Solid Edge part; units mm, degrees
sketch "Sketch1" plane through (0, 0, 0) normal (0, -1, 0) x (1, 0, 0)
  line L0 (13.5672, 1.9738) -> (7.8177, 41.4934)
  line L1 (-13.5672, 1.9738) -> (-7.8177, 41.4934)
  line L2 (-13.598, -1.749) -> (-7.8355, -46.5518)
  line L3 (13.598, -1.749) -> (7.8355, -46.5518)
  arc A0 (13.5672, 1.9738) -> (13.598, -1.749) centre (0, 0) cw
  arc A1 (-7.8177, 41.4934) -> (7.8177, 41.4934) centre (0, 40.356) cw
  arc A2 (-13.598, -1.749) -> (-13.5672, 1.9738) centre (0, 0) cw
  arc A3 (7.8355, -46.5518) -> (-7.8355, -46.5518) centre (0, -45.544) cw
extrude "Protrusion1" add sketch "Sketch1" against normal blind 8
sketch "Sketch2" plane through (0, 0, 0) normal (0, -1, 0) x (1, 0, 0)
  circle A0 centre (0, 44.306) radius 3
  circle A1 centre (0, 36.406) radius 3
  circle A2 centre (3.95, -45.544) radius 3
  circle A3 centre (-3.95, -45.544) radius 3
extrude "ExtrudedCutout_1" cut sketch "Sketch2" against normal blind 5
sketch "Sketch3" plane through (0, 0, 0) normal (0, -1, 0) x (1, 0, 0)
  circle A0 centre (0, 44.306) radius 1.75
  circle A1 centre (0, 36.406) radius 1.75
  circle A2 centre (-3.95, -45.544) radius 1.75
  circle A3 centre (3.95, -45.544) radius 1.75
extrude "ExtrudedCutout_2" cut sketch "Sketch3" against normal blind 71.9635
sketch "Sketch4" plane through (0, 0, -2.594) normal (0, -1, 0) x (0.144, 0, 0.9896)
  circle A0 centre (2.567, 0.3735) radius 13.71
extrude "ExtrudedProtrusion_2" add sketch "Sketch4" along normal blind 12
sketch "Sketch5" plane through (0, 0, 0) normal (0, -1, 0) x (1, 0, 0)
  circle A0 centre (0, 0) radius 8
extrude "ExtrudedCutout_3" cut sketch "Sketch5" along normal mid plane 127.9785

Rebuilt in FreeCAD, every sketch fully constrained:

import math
import FreeCAD as App
import Part
import Sketcher
from FreeCAD import Vector
Q = App.Units.Quantity

doc = App.newDocument("Part")
params = doc.addObject("Spreadsheet::Sheet", "Params")
for row, (alias, value) in enumerate([
    ("sketch1_radius", "7.9 mm"),
    ("sketch1_radius2", "13.71 mm"),
    ("pad1_length", "8 mm"),
    ("sketch2_diameter", "6 mm"),
    ("pocket1_length", "5 mm"),
    ("sketch3_diameter", "3.5 mm"),
    ("pocket2_length", "71.9635 mm"),
    ("sketch4_diameter", "27.42 mm"),
    ("pad2_length", "12 mm"),
    ("sketch5_diameter", "16 mm"),
    ("pocket3_length", "127.9785 mm"),
], start=1):
    params.set(f"A{row}", alias)
    params.set(f"B{row}", "=" + value)
    params.setAlias(f"B{row}", alias)

body = doc.addObject("PartDesign::Body", "Body")

sketch1 = body.newObject("Sketcher::SketchObject", "Sketch")
sketch1.AttachmentSupport = (doc.getObject("XZ_Plane"), [""])
sketch1.MapMode = "FlatFace"
sketch1.addGeometry(Part.ArcOfCircle(Part.Circle(Vector(0, 0, 0), Vector(0, 0, 1), 13.710018), math.radians(-7.329249), math.radians(8.277502)), False)
sketch1.addGeometry(Part.LineSegment(Vector(13.5672, 1.9738, 0), Vector(7.8177, 41.4934, 0)), False)
sketch1.addGeometry(Part.ArcOfCircle(Part.Circle(Vector(0, 40.356, 0), Vector(0, 0, 1), 7.900007), math.radians(8.277902), math.radians(171.722098)), False)
sketch1.addGeometry(Part.LineSegment(Vector(-7.8177, 41.4934, 0), Vector(-13.5672, 1.9738, 0)), False)
sketch1.addGeometry(Part.ArcOfCircle(Part.Circle(Vector(0, 0, 0), Vector(0, 0, 1), 13.710026), math.radians(171.722498), math.radians(187.329249)), False)
sketch1.addGeometry(Part.LineSegment(Vector(-13.598, -1.749, 0), Vector(-7.8355, -46.5518, 0)), False)
sketch1.addGeometry(Part.ArcOfCircle(Part.Circle(Vector(0, -45.544, 0), Vector(0, 0, 1), 7.900046), math.radians(-172.67087), math.radians(-7.32913)), False)
sketch1.addGeometry(Part.LineSegment(Vector(7.8355, -46.5518, 0), Vector(13.598, -1.749, 0)), False)
sketch1.addConstraint(Sketcher.Constraint("Tangent", 0, 2, 1, 1))
sketch1.addConstraint(Sketcher.Constraint("Tangent", 1, 2, 2, 1))
sketch1.addConstraint(Sketcher.Constraint("Tangent", 2, 2, 3, 1))
sketch1.addConstraint(Sketcher.Constraint("Tangent", 3, 2, 4, 1))
sketch1.addConstraint(Sketcher.Constraint("Tangent", 4, 2, 5, 1))
sketch1.addConstraint(Sketcher.Constraint("Tangent", 5, 2, 6, 1))
sketch1.addConstraint(Sketcher.Constraint("Tangent", 6, 2, 7, 1))
sketch1.addConstraint(Sketcher.Constraint("Tangent", 7, 2, 0, 1))
sketch1.addConstraint(Sketcher.Constraint("Coincident", 0, 3, -1, 1))
sketch1.addConstraint(Sketcher.Constraint("Coincident", 4, 3, -1, 1))
sketch1.addConstraint(Sketcher.Constraint("Equal", 0, 4))
sketch1.addConstraint(Sketcher.Constraint("Equal", 2, 6))
sketch1.addConstraint(Sketcher.Constraint("PointOnObject", 2, 3, -2))
sketch1.addConstraint(Sketcher.Constraint("PointOnObject", 6, 3, -2))
sketch1.addConstraint(Sketcher.Constraint("Radius", 2, 7.9))
sketch1.addConstraint(Sketcher.Constraint("Radius", 0, 13.71))
sketch1.addConstraint(Sketcher.Constraint("Angle", 5, Q("-82.671 deg")))
sketch1.addConstraint(Sketcher.Constraint("DistanceY", 6, 3, 2, 3, 85.9))
sketch1.setExpression("Constraints[14]", "Params.sketch1_radius")
sketch1.setExpression("Constraints[15]", "Params.sketch1_radius2")
pad1 = body.newObject("PartDesign::Pad", "Pad")
pad1.Profile = sketch1
pad1.setExpression("Length", "Params.pad1_length")
pad1.Reversed = True

sketch2 = body.newObject("Sketcher::SketchObject", "Sketch001")
sketch2.AttachmentSupport = (doc.getObject("XZ_Plane"), [""])
sketch2.MapMode = "FlatFace"
sketch2.addGeometry(Part.Circle(Vector(0, 44.306, 0), Vector(0, 0, 1), 3), False)
sketch2.addGeometry(Part.Circle(Vector(0, 36.406, 0), Vector(0, 0, 1), 3), False)
sketch2.addGeometry(Part.Circle(Vector(3.95, -45.544, 0), Vector(0, 0, 1), 3), False)
sketch2.addGeometry(Part.Circle(Vector(-3.95, -45.544, 0), Vector(0, 0, 1), 3), False)
sketch2.addConstraint(Sketcher.Constraint("Equal", 0, 1))
sketch2.addConstraint(Sketcher.Constraint("Equal", 1, 2))
sketch2.addConstraint(Sketcher.Constraint("Equal", 2, 3))
sketch2.addConstraint(Sketcher.Constraint("Symmetric", 2, 3, 3, 3, -2))
sketch2.addConstraint(Sketcher.Constraint("PointOnObject", 0, 3, -2))
sketch2.addConstraint(Sketcher.Constraint("PointOnObject", 1, 3, -2))
sketch2.addConstraint(Sketcher.Constraint("Diameter", 0, 6.0))
sketch2.addConstraint(Sketcher.Constraint("DistanceY", 1, 3, 0, 3, 7.9))
sketch2.addConstraint(Sketcher.Constraint("DistanceX", 3, 3, 2, 3, 7.9))
sketch2.addConstraint(Sketcher.Constraint("DistanceY", 2, 3, 1, 3, 81.95))
sketch2.addConstraint(Sketcher.Constraint("DistanceY", -1, 1, 0, 3, 44.306))
sketch2.setExpression("Constraints[6]", "Params.sketch2_diameter")
pocket1 = body.newObject("PartDesign::Pocket", "Pocket")
pocket1.Profile = sketch2
pocket1.setExpression("Length", "Params.pocket1_length")

sketch3 = body.newObject("Sketcher::SketchObject", "Sketch002")
sketch3.AttachmentSupport = (doc.getObject("XZ_Plane"), [""])
sketch3.MapMode = "FlatFace"
sketch3.addGeometry(Part.Circle(Vector(0, 44.306, 0), Vector(0, 0, 1), 1.75), False)
sketch3.addGeometry(Part.Circle(Vector(0, 36.406, 0), Vector(0, 0, 1), 1.75), False)
sketch3.addGeometry(Part.Circle(Vector(-3.95, -45.544, 0), Vector(0, 0, 1), 1.75), False)
sketch3.addGeometry(Part.Circle(Vector(3.95, -45.544, 0), Vector(0, 0, 1), 1.75), False)
sketch3.addConstraint(Sketcher.Constraint("Equal", 0, 1))
sketch3.addConstraint(Sketcher.Constraint("Equal", 1, 2))
sketch3.addConstraint(Sketcher.Constraint("Equal", 2, 3))
sketch3.addConstraint(Sketcher.Constraint("Symmetric", 2, 3, 3, 3, -2))
sketch3.addConstraint(Sketcher.Constraint("PointOnObject", 0, 3, -2))
sketch3.addConstraint(Sketcher.Constraint("PointOnObject", 1, 3, -2))
sketch3.addConstraint(Sketcher.Constraint("Diameter", 0, 3.5))
sketch3.addConstraint(Sketcher.Constraint("DistanceY", 1, 3, 0, 3, 7.9))
sketch3.addConstraint(Sketcher.Constraint("DistanceX", 2, 3, 3, 3, 7.9))
sketch3.addConstraint(Sketcher.Constraint("DistanceY", 2, 3, 1, 3, 81.95))
sketch3.addConstraint(Sketcher.Constraint("DistanceY", -1, 1, 0, 3, 44.306))
sketch3.setExpression("Constraints[6]", "Params.sketch3_diameter")
pocket2 = body.newObject("PartDesign::Pocket", "Pocket001")
pocket2.Profile = sketch3
pocket2.setExpression("Length", "Params.pocket2_length")

sketch4 = body.newObject("Sketcher::SketchObject", "Sketch003")
sketch4.AttachmentSupport = (doc.getObject("XZ_Plane"), [""])
sketch4.MapMode = "FlatFace"
sketch4.addGeometry(Part.Circle(Vector(0.000032, 0.00003, 0), Vector(0, 0, 1), 13.71), False)
sketch4.addConstraint(Sketcher.Constraint("Coincident", 0, 3, -1, 1))
sketch4.addConstraint(Sketcher.Constraint("Diameter", 0, 27.42))
sketch4.setExpression("Constraints[1]", "Params.sketch4_diameter")
pad2 = body.newObject("PartDesign::Pad", "Pad001")
pad2.Profile = sketch4
pad2.setExpression("Length", "Params.pad2_length")

sketch5 = body.newObject("Sketcher::SketchObject", "Sketch004")
sketch5.AttachmentSupport = (doc.getObject("XZ_Plane"), [""])
sketch5.MapMode = "FlatFace"
sketch5.addGeometry(Part.Circle(Vector(0, 0, 0), Vector(0, 0, 1), 8), False)
sketch5.addConstraint(Sketcher.Constraint("Coincident", 0, 3, -1, 1))
sketch5.addConstraint(Sketcher.Constraint("Diameter", 0, 16.0))
sketch5.setExpression("Constraints[1]", "Params.sketch5_diameter")
pocket3 = body.newObject("PartDesign::Pocket", "Pocket002")
pocket3.Profile = sketch5
pocket3.setExpression("Length", "Params.pocket3_length")
pocket3.Midplane = True

doc.recompute()
